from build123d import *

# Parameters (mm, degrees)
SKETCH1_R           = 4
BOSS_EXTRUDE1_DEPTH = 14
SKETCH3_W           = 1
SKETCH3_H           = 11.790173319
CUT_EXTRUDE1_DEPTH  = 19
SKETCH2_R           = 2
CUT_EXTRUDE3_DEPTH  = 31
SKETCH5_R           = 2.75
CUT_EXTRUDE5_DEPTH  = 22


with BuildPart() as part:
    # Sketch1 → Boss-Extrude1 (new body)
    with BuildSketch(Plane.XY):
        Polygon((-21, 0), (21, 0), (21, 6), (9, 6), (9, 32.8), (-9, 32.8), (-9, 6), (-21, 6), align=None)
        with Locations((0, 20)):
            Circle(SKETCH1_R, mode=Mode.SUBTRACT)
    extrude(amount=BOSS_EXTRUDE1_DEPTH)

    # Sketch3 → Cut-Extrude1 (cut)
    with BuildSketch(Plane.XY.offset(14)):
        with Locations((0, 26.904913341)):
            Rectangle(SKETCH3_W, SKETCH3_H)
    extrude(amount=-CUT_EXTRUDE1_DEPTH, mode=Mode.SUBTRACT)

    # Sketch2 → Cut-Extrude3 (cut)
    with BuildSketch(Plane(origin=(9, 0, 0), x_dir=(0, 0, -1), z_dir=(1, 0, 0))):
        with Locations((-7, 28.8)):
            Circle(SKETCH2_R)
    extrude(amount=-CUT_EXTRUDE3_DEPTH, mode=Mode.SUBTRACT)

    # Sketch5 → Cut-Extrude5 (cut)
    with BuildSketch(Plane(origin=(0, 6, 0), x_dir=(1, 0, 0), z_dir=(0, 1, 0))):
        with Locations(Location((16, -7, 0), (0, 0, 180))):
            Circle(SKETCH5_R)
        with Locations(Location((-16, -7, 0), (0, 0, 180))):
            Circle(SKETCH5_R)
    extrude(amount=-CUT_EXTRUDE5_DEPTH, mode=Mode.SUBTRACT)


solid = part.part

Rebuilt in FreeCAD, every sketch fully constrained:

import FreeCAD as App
import Part
import Sketcher
from FreeCAD import Vector


def add_polygon(sketch, points):
    """Adds a closed chain of lines whose ends are joined by coincident constraints."""
    first, n = sketch.GeometryCount, len(points)
    for a, b in zip(points, points[1:] + points[:1]):
        sketch.addGeometry(Part.LineSegment(App.Vector(*a, 0), App.Vector(*b, 0)), False)
    for i in range(n):
        sketch.addConstraint(Sketcher.Constraint("Coincident", first + i, 2, first + (i + 1) % n, 1))

doc = App.newDocument("Part")
params = doc.addObject("Spreadsheet::Sheet", "Params")
for row, (alias, value) in enumerate([
    ("sketch1_diameter", "8 mm"),
    ("sketch1_width", "42 mm"),
    ("sketch1_width2", "12 mm"),
    ("sketch1_height", "6 mm"),
    ("sketch1_height2", "26.8 mm"),
    ("pad1_length", "14 mm"),
    ("sketch2_width", "1 mm"),
    ("pocket1_length", "19 mm"),
    ("sketch3_diameter", "4 mm"),
    ("pocket2_length", "31 mm"),
    ("sketch4_diameter", "5.5 mm"),
    ("pocket3_length", "22 mm"),
], start=1):
    params.set(f"A{row}", alias)
    params.set(f"B{row}", "=" + value)
    params.setAlias(f"B{row}", alias)

body = doc.addObject("PartDesign::Body", "Body")

# Sketch on XY plane
sketch1 = doc.addObject("Sketcher::SketchObject", "Sketch")
body.addObject(sketch1)
sketch1.AttachmentSupport = (doc.XY_Plane, [""])
sketch1.MapMode = "FlatFace"
add_polygon(sketch1, [(-21, 0), (21, 0), (21, 6), (9, 6), (9, 32.8), (-9, 32.8), (-9, 6), (-21, 6)])  # lines 0-7
sketch1.addGeometry(Part.Circle(Vector(0, 20, 0), Vector(0, 0, 1), 4), False)  # 8
sketch1.addConstraint(Sketcher.Constraint("Horizontal", 0))
sketch1.addConstraint(Sketcher.Constraint("Vertical", 1))
sketch1.addConstraint(Sketcher.Constraint("Horizontal", 2))
sketch1.addConstraint(Sketcher.Constraint("Vertical", 3))
sketch1.addConstraint(Sketcher.Constraint("Horizontal", 4))
sketch1.addConstraint(Sketcher.Constraint("Vertical", 5))
sketch1.addConstraint(Sketcher.Constraint("Horizontal", 6))
sketch1.addConstraint(Sketcher.Constraint("Vertical", 7))
sketch1.addConstraint(Sketcher.Constraint("Symmetric", 0, 2, 7, 2, -1, 1))
sketch1.addConstraint(Sketcher.Constraint("Symmetric", 2, 2, 5, 2, -2))
sketch1.addConstraint(Sketcher.Constraint("PointOnObject", 8, 3, -2))
sketch1.addConstraint(Sketcher.Constraint("Diameter", 8, 8.0))
sketch1.addConstraint(Sketcher.Constraint("DistanceX", 0, 1, 0, 2, 42.0))
sketch1.addConstraint(Sketcher.Constraint("DistanceX", 2, 2, 2, 1, 12.0))
sketch1.addConstraint(Sketcher.Constraint("DistanceY", 1, 1, 1, 2, 6.0))
sketch1.addConstraint(Sketcher.Constraint("DistanceY", 3, 1, 3, 2, 26.8))
sketch1.addConstraint(Sketcher.Constraint("DistanceY", -1, 1, 8, 3, 20.0))
sketch1.setExpression("Constraints[19]", "Params.sketch1_diameter")
sketch1.setExpression("Constraints[20]", "Params.sketch1_width")
sketch1.setExpression("Constraints[21]", "Params.sketch1_width2")
sketch1.setExpression("Constraints[22]", "Params.sketch1_height")
sketch1.setExpression("Constraints[23]", "Params.sketch1_height2")
pad1 = doc.addObject("PartDesign::Pad", "Pad")
body.addObject(pad1)
pad1.Profile = sketch1
pad1.setExpression("Length", "Params.pad1_length")

# Sketch on XY plane
sketch2 = doc.addObject("Sketcher::SketchObject", "Sketch001")
body.addObject(sketch2)
sketch2.AttachmentSupport = (doc.XY_Plane, [""])
sketch2.MapMode = "FlatFace"
sketch2.AttachmentOffset = App.Placement(Vector(0, 0, 14), App.Rotation())
add_polygon(sketch2, [(-0.5, 32.8), (-0.5, 21), (0.5, 21), (0.5, 32.8)])  # lines 0-3
sketch2.addConstraint(Sketcher.Constraint("Vertical", 0))
sketch2.addConstraint(Sketcher.Constraint("Horizontal", 1))
sketch2.addConstraint(Sketcher.Constraint("Vertical", 2))
sketch2.addConstraint(Sketcher.Constraint("Horizontal", 3))
sketch2.addConstraint(Sketcher.Constraint("DistanceX", 1, 1, 1, 2, 1.0))
sketch2.addConstraint(Sketcher.Constraint("DistanceX", 0, 2, -1, 1, 0.5))
sketch2.addConstraint(Sketcher.Constraint("DistanceY", -1, 1, 2, 2, 32.8))
sketch2.addConstraint(Sketcher.Constraint("DistanceY", 0, 2, 0, 1, 11.790173))
sketch2.setExpression("Constraints[8]", "Params.sketch2_width")
pocket1 = doc.addObject("PartDesign::Pocket", "Pocket")
body.addObject(pocket1)
pocket1.Profile = sketch2
pocket1.setExpression("Length", "Params.pocket1_length")

# Sketch on YZ plane
sketch3 = doc.addObject("Sketcher::SketchObject", "Sketch002")
body.addObject(sketch3)
sketch3.AttachmentSupport = (doc.YZ_Plane, [""])
sketch3.MapMode = "FlatFace"
sketch3.AttachmentOffset = App.Placement(Vector(0, 0, 9), App.Rotation())
sketch3.addGeometry(Part.Circle(Vector(28.8, 7, 0), Vector(0, 0, 1), 2), False)
sketch3.addConstraint(Sketcher.Constraint("Diameter", 0, 4.0))
sketch3.addConstraint(Sketcher.Constraint("DistanceY", -1, 1, 0, 3, 7.0))
sketch3.addConstraint(Sketcher.Constraint("DistanceX", -1, 1, 0, 3, 28.8))
sketch3.setExpression("Constraints[0]", "Params.sketch3_diameter")
pocket2 = doc.addObject("PartDesign::Pocket", "Pocket001")
body.addObject(pocket2)
pocket2.Profile = sketch3
pocket2.setExpression("Length", "Params.pocket2_length")

# Sketch on XZ plane
sketch4 = doc.addObject("Sketcher::SketchObject", "Sketch003")
body.addObject(sketch4)
sketch4.AttachmentSupport = (doc.XZ_Plane, [""])
sketch4.MapMode = "FlatFace"
sketch4.AttachmentOffset = App.Placement(Vector(0, 0, -6), App.Rotation())
sketch4.addGeometry(Part.Circle(Vector(16, 7, 0), Vector(0, 0, 1), 2.8), False)
sketch4.addGeometry(Part.Circle(Vector(-16, 7, 0), Vector(0, 0, 1), 2.8), False)
sketch4.addConstraint(Sketcher.Constraint("Equal", 0, 1))
sketch4.addConstraint(Sketcher.Constraint("Symmetric", 0, 3, 1, 3, -2))
sketch4.addConstraint(Sketcher.Constraint("Diameter", 0, 5.5))
sketch4.addConstraint(Sketcher.Constraint("DistanceX", -1, 1, 0, 3, 16.0))
sketch4.addConstraint(Sketcher.Constraint("DistanceY", -1, 1, 0, 3, 7.0))
sketch4.setExpression("Constraints[2]", "Params.sketch4_diameter")
pocket3 = doc.addObject("PartDesign::Pocket", "Pocket002")
body.addObject(pocket3)
pocket3.Profile = sketch4
pocket3.setExpression("Length", "Params.pocket3_length")
pocket3.Reversed = True

doc.recompute()
